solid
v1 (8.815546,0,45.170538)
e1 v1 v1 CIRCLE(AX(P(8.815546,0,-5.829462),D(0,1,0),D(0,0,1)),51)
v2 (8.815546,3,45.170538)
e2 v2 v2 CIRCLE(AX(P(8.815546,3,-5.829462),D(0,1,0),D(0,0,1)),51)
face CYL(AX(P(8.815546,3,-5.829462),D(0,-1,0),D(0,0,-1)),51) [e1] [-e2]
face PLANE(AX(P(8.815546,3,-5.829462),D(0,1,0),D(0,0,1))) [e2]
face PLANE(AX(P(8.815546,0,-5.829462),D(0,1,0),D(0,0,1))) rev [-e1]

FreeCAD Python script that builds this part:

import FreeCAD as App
import Part
import Sketcher
from FreeCAD import Vector

doc = App.newDocument("Part")
body = doc.addObject("PartDesign::Body", "Body")

sketch1 = doc.addObject("Sketcher::SketchObject", "Sketch")
body.addObject(sketch1)
sketch1.AttachmentSupport = (doc.XZ_Plane, [""])
sketch1.MapMode = "FlatFace"
sketch1.addGeometry(Part.Circle(Vector(9, -6, 0), Vector(0, 0, 1), 51), False)
sketch1.addConstraint(Sketcher.Constraint("Diameter", 0, 102.0))
sketch1.addConstraint(Sketcher.Constraint("DistanceY", 0, 3, -1, 1, 5.829462))
sketch1.addConstraint(Sketcher.Constraint("DistanceX", -1, 1, 0, 3, 8.815546))
pad1 = doc.addObject("PartDesign::Pad", "Pad")
body.addObject(pad1)
pad1.Profile = sketch1
pad1.Length = 3
pad1.Reversed = True

doc.recompute()
